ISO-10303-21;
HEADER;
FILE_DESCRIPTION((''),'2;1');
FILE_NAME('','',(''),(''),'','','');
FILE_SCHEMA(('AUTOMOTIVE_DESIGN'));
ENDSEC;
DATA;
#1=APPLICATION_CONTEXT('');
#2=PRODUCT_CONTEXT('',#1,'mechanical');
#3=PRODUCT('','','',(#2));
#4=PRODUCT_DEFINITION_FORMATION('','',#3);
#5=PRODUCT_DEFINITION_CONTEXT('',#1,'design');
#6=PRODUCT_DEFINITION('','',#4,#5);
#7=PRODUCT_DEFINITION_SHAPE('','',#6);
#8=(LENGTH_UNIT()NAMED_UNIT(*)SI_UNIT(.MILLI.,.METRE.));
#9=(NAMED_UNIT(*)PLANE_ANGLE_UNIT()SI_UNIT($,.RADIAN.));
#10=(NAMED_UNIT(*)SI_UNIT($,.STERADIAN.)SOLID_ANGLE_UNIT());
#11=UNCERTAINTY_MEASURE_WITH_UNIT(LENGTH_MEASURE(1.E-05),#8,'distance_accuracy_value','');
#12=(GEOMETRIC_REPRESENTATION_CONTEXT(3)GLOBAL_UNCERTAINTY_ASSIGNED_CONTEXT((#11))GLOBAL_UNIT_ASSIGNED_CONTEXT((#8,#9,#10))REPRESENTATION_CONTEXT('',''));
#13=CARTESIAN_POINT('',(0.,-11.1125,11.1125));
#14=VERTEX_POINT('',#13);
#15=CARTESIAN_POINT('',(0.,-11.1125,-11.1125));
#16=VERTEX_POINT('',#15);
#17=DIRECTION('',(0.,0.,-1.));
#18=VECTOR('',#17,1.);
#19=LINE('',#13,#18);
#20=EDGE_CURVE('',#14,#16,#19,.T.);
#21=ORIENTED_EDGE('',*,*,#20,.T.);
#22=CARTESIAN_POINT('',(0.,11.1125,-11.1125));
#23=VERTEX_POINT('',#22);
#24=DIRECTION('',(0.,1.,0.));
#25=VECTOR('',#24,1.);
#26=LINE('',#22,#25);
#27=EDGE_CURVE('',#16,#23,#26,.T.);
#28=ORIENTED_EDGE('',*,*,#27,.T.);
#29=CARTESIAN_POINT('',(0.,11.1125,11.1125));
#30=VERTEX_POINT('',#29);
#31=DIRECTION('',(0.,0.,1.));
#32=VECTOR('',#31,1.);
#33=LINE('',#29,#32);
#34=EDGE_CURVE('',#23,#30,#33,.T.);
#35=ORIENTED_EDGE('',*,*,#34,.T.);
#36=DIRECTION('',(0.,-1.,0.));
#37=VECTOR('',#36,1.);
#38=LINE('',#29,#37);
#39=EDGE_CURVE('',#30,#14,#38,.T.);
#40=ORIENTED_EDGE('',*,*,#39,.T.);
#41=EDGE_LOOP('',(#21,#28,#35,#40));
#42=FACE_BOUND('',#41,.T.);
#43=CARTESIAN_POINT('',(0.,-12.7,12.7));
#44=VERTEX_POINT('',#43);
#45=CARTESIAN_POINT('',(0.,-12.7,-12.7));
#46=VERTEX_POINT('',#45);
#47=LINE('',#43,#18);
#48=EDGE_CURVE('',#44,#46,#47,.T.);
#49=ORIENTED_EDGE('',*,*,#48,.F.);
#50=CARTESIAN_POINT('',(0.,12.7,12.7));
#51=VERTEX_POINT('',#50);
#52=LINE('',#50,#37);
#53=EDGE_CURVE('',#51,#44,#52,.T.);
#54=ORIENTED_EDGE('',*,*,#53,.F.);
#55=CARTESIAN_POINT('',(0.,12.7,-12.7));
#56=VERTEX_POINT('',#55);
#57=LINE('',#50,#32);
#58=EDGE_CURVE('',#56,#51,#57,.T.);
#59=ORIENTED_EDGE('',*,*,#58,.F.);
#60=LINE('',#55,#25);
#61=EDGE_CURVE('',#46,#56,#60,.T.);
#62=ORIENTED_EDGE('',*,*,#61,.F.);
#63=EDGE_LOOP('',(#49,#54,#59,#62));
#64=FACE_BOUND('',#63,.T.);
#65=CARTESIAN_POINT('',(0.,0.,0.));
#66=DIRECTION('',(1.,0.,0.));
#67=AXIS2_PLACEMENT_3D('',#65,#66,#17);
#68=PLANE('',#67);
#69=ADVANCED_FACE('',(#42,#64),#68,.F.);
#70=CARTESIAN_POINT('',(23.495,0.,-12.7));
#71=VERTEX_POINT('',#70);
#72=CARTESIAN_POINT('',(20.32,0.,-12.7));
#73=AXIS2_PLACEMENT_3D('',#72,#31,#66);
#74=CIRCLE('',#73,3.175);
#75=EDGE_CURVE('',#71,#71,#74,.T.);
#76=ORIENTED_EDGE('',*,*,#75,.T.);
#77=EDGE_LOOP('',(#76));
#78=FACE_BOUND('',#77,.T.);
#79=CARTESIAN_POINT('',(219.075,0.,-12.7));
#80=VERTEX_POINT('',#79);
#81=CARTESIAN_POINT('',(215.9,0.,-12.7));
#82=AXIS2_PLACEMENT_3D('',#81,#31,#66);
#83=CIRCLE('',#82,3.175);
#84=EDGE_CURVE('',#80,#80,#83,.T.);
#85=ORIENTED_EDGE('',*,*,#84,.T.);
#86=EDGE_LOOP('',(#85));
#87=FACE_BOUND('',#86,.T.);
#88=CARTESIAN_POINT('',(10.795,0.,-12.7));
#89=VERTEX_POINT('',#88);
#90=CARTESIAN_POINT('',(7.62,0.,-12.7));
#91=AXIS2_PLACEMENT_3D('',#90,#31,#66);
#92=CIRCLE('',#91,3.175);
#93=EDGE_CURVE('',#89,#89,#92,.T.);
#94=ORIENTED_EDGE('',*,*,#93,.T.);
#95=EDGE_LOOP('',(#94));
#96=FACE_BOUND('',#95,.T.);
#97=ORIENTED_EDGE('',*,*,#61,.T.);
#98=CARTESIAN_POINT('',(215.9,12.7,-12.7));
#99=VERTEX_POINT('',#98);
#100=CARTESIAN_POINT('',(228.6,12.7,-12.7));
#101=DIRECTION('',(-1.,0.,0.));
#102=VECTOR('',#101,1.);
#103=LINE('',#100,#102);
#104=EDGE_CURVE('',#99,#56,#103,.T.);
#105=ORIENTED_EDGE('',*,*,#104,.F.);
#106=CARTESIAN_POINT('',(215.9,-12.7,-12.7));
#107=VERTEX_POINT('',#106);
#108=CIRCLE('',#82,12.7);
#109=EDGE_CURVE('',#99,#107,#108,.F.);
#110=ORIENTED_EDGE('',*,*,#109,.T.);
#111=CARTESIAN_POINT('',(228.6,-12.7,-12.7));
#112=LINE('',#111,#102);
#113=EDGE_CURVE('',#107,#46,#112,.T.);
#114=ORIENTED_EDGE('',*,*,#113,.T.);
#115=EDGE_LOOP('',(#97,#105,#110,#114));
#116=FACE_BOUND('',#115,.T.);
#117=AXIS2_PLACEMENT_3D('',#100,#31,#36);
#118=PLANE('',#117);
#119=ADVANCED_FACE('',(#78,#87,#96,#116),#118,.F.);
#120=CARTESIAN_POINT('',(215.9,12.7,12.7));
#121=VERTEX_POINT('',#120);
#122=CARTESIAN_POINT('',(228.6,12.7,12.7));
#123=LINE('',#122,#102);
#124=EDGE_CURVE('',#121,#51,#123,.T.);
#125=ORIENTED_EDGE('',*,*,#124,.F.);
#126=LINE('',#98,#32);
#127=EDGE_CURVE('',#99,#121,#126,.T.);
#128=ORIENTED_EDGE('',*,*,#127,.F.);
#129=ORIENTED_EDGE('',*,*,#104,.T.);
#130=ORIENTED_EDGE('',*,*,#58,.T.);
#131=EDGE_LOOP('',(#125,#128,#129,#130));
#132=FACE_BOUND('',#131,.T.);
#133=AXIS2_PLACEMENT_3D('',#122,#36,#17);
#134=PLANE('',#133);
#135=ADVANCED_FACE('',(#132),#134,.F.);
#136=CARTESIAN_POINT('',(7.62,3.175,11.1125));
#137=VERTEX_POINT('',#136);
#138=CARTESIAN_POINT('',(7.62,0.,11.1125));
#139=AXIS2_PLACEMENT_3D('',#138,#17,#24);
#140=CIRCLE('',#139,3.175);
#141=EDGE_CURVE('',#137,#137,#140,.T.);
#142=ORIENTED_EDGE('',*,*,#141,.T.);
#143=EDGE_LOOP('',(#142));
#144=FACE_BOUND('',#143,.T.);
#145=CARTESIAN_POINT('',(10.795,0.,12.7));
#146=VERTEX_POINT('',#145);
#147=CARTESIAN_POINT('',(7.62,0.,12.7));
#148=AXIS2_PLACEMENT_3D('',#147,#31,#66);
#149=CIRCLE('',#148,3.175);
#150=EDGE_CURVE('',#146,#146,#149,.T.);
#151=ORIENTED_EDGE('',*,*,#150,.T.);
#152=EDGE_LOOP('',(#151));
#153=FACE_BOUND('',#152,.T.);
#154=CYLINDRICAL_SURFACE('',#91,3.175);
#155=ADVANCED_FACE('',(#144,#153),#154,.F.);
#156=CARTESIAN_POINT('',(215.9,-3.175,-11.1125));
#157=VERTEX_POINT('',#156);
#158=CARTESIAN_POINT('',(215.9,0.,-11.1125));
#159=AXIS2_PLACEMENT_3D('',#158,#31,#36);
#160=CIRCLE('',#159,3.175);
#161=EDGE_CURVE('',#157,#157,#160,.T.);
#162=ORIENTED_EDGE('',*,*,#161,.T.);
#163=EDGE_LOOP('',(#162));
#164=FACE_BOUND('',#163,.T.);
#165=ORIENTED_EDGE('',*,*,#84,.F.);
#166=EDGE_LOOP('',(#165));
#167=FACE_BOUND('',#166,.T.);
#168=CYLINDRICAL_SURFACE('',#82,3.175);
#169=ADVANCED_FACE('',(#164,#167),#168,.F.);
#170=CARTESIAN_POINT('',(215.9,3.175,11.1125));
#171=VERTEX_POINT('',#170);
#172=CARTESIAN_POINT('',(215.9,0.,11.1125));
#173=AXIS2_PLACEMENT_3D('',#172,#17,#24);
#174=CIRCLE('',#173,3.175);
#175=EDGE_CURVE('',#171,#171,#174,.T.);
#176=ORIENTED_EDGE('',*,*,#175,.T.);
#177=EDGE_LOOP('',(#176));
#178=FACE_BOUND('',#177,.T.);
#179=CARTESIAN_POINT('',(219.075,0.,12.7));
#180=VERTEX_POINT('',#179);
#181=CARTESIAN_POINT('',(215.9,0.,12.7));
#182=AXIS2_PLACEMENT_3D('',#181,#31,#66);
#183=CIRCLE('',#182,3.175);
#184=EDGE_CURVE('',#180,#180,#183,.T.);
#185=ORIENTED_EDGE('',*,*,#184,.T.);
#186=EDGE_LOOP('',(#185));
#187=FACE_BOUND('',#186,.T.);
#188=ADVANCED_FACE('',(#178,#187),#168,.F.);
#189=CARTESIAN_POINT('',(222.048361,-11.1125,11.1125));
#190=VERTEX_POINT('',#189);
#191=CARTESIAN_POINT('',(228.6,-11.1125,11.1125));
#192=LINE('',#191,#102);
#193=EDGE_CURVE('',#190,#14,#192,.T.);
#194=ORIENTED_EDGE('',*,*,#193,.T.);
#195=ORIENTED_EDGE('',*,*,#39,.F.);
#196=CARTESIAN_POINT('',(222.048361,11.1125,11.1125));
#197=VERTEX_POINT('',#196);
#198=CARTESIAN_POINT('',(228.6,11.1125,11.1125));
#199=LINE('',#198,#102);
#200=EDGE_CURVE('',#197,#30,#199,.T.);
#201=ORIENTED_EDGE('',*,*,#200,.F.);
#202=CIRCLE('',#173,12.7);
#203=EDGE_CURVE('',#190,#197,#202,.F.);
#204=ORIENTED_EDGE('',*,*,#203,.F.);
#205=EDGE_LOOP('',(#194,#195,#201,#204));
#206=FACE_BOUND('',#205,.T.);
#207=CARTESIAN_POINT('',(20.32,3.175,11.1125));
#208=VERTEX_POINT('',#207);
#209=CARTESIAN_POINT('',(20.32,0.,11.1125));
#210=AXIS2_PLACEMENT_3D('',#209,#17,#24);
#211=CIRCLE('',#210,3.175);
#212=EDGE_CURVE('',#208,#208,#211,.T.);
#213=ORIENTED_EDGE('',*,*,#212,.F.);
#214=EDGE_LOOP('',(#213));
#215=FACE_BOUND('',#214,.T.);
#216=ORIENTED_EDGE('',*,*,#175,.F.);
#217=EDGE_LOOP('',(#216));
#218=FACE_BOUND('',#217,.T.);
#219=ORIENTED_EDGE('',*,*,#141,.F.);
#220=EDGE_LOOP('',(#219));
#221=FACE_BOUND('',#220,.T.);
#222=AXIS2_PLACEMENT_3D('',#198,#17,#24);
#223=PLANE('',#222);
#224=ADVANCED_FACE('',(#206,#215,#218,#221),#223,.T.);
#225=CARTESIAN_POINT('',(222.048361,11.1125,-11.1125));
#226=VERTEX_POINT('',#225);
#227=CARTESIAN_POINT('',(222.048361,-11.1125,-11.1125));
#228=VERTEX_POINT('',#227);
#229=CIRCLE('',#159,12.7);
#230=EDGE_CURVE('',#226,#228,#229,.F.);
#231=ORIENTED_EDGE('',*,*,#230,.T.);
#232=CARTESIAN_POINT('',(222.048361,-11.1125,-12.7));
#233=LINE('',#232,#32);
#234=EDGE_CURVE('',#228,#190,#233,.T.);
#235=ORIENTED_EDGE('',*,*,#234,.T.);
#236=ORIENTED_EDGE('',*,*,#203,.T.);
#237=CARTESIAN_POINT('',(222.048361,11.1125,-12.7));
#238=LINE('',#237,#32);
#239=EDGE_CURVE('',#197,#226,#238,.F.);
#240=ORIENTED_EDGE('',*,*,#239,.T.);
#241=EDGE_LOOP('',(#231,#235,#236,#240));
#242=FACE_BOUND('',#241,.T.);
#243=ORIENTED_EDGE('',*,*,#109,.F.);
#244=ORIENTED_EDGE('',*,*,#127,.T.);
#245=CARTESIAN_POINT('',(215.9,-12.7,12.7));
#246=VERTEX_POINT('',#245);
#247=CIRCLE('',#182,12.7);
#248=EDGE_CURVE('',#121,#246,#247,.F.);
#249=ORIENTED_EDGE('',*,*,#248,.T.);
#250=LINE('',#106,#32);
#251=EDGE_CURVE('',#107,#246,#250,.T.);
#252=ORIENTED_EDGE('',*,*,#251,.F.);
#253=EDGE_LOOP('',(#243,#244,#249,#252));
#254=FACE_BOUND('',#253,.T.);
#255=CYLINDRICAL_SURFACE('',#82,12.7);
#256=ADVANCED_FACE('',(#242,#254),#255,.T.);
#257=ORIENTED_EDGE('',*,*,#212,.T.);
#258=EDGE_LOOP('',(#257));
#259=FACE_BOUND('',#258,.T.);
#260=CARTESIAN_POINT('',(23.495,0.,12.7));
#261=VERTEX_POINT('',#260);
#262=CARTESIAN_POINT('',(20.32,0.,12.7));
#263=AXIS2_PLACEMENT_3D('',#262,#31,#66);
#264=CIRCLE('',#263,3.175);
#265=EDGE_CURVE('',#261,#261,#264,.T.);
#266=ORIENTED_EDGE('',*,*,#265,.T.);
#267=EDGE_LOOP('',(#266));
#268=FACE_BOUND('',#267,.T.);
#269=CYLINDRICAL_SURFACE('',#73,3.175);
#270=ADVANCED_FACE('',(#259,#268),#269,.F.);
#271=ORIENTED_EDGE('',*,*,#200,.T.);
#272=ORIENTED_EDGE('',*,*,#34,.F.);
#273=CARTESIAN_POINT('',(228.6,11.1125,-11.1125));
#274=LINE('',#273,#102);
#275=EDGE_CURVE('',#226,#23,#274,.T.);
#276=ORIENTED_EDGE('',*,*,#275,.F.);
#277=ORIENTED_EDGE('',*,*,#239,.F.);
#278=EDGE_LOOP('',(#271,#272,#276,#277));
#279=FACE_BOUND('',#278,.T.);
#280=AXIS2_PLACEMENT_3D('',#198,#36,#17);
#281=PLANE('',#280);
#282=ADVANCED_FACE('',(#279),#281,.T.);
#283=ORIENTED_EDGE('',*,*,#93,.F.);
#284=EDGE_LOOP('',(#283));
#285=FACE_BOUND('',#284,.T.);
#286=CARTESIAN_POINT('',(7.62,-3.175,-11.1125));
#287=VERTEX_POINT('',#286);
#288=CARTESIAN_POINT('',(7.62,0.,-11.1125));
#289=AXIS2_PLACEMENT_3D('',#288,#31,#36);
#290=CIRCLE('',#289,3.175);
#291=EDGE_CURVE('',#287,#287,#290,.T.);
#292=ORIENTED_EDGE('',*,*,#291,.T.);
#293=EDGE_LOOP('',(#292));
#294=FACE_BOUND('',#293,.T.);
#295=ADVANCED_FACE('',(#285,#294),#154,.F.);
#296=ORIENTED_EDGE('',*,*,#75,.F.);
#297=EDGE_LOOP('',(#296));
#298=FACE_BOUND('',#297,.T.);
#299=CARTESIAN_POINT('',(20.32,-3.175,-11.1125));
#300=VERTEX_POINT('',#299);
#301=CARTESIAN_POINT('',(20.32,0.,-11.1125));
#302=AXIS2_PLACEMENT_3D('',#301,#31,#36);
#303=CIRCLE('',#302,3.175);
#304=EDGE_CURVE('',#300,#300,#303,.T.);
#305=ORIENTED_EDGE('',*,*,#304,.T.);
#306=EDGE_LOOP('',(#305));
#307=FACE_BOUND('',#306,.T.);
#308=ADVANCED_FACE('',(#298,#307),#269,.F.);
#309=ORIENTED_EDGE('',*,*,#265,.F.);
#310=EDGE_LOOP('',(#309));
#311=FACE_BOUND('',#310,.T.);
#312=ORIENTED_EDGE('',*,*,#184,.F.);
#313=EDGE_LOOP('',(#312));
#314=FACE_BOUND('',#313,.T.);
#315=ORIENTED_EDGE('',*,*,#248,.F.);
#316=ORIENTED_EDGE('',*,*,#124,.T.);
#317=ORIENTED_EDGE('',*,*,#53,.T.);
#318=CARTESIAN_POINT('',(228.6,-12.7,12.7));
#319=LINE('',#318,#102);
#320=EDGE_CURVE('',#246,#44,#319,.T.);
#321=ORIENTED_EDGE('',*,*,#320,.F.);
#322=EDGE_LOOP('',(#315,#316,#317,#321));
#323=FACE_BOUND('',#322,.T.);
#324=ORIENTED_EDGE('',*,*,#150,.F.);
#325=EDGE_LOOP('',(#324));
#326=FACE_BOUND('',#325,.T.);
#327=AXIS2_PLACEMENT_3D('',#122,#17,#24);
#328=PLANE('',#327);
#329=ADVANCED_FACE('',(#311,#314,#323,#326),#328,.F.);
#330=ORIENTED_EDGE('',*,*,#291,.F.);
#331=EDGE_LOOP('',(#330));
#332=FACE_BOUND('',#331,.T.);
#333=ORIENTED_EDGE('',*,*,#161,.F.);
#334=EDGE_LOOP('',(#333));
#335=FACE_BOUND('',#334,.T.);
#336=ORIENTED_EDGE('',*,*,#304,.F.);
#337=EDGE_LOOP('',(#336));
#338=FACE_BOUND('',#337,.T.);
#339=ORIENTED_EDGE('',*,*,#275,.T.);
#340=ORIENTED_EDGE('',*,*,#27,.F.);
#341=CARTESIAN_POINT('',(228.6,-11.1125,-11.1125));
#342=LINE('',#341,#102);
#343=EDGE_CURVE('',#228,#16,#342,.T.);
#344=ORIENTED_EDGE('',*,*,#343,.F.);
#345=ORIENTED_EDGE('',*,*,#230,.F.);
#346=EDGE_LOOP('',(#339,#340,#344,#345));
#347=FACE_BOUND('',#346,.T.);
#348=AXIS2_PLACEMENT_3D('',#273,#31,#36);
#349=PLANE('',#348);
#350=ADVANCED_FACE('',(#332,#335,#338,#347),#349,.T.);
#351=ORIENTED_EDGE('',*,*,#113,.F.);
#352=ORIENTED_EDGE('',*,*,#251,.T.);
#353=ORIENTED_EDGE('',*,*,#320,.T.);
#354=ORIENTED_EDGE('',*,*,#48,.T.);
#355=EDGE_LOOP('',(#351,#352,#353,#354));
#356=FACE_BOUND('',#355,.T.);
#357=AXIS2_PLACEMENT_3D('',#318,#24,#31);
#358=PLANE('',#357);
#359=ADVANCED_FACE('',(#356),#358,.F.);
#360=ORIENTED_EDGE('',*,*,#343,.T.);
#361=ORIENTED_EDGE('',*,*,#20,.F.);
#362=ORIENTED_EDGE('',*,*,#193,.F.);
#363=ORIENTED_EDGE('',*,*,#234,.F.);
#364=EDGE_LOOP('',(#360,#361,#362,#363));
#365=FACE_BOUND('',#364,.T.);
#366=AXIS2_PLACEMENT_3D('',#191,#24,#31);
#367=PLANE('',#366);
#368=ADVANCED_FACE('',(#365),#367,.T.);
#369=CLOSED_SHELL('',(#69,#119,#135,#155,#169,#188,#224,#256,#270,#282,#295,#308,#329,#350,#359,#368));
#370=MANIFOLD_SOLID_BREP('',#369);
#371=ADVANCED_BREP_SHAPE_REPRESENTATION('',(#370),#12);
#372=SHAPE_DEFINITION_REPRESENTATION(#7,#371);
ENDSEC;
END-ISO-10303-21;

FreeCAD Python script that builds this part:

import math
import FreeCAD as App
import Part
import Sketcher
from FreeCAD import Vector
Q = App.Units.Quantity

doc = App.newDocument("Part")
body = doc.addObject("PartDesign::Body", "Body")

# Sketch on YZ plane
sketch1 = body.newObject("Sketcher::SketchObject", "Sketch")
sketch1.AttachmentSupport = (doc.getObject("YZ_Plane"), [""])
sketch1.MapMode = "FlatFace"
sketch1.addGeometry(Part.LineSegment(Vector(13, 13, 0), Vector(-13, 13, 0)), False)
sketch1.addGeometry(Part.LineSegment(Vector(-13, 13, 0), Vector(-13, -13, 0)), False)
sketch1.addGeometry(Part.LineSegment(Vector(-13, -13, 0), Vector(13, -13, 0)), False)
sketch1.addGeometry(Part.LineSegment(Vector(13, -13, 0), Vector(13, 13, 0)), False)
sketch1.addGeometry(Part.LineSegment(Vector(-11, -11, 0), Vector(-11, 11, 0)), False)
sketch1.addGeometry(Part.LineSegment(Vector(-11, 11, 0), Vector(11, 11, 0)), False)
sketch1.addGeometry(Part.LineSegment(Vector(11, 11, 0), Vector(11, -11, 0)), False)
sketch1.addGeometry(Part.LineSegment(Vector(11, -11, 0), Vector(-11, -11, 0)), False)
sketch1.addConstraint(Sketcher.Constraint("Coincident", 0, 2, 1, 1))
sketch1.addConstraint(Sketcher.Constraint("Coincident", 1, 2, 2, 1))
sketch1.addConstraint(Sketcher.Constraint("Coincident", 2, 2, 3, 1))
sketch1.addConstraint(Sketcher.Constraint("Coincident", 3, 2, 0, 1))
sketch1.addConstraint(Sketcher.Constraint("Coincident", 4, 2, 5, 1))
sketch1.addConstraint(Sketcher.Constraint("Coincident", 5, 2, 6, 1))
sketch1.addConstraint(Sketcher.Constraint("Coincident", 6, 2, 7, 1))
sketch1.addConstraint(Sketcher.Constraint("Coincident", 7, 2, 4, 1))
sketch1.addConstraint(Sketcher.Constraint("Horizontal", 0))
sketch1.addConstraint(Sketcher.Constraint("Vertical", 1))
sketch1.addConstraint(Sketcher.Constraint("Horizontal", 2))
sketch1.addConstraint(Sketcher.Constraint("Vertical", 3))
sketch1.addConstraint(Sketcher.Constraint("Vertical", 4))
sketch1.addConstraint(Sketcher.Constraint("Horizontal", 5))
sketch1.addConstraint(Sketcher.Constraint("Vertical", 6))
sketch1.addConstraint(Sketcher.Constraint("Horizontal", 7))
sketch1.addConstraint(Sketcher.Constraint("Symmetric", 0, 2, 2, 2, -1, 1))
sketch1.addConstraint(Sketcher.Constraint("Symmetric", 4, 2, 6, 2, -1, 1))
sketch1.addConstraint(Sketcher.Constraint("Equal", 2, 1))
sketch1.addConstraint(Sketcher.Constraint("Equal", 7, 4))
sketch1.addConstraint(Sketcher.Constraint("DistanceX", 0, 2, 0, 1, Q("1 in")))
sketch1.addConstraint(Sketcher.Constraint("DistanceX", 5, 1, 5, 2, Q("0.875 in")))
pad1 = body.newObject("PartDesign::Pad", "Pad")
pad1.Profile = sketch1
pad1.Length = Q("9 in")

# Sketch on XY plane
sketch2 = body.newObject("Sketcher::SketchObject", "Sketch001")
sketch2.AttachmentSupport = (doc.getObject("XY_Plane"), [""])
sketch2.MapMode = "FlatFace"
sketch2.AttachmentOffset = App.Placement(Vector(0, 0, 0.5 * 25.4), App.Rotation())
sketch2.addGeometry(Part.Circle(Vector(215.9, 0, 0), Vector(0, 0, 1), 3.2), False)
sketch2.addGeometry(Part.Circle(Vector(7.6, 0, 0), Vector(0, 0, 1), 3.2), False)
sketch2.addGeometry(Part.Circle(Vector(20.3, 0, 0), Vector(0, 0, 1), 3.2), False)
sketch2.addConstraint(Sketcher.Constraint("Equal", 0, 1))
sketch2.addConstraint(Sketcher.Constraint("Equal", 1, 2))
sketch2.addConstraint(Sketcher.Constraint("PointOnObject", 0, 3, -1))
sketch2.addConstraint(Sketcher.Constraint("PointOnObject", 1, 3, -1))
sketch2.addConstraint(Sketcher.Constraint("PointOnObject", 2, 3, -1))
sketch2.addConstraint(Sketcher.Constraint("Diameter", 0, Q("0.25 in")))
sketch2.addConstraint(Sketcher.Constraint("DistanceX", -1, 1, 0, 3, Q("8.5 in")))
sketch2.addConstraint(Sketcher.Constraint("DistanceX", -1, 1, 1, 3, Q("0.3 in")))
sketch2.addConstraint(Sketcher.Constraint("DistanceX", -1, 1, 2, 3, Q("0.8 in")))
pocket1 = body.newObject("PartDesign::Pocket", "Pocket")
pocket1.Profile = sketch2
pocket1.Type = "ThroughAll"

# Sketch on XY plane
sketch3 = body.newObject("Sketcher::SketchObject", "Sketch002")
sketch3.AttachmentSupport = (doc.getObject("XY_Plane"), [""])
sketch3.MapMode = "FlatFace"
sketch3.AttachmentOffset = App.Placement(Vector(0, 0, 0.5 * 25.4), App.Rotation())
sketch3.addGeometry(Part.LineSegment(Vector(229, 13, 0), Vector(216, 13, 0)), False)
sketch3.addGeometry(Part.ArcOfCircle(Part.Circle(Vector(216, 0, 0), Vector(0, 0, 1), 13), math.radians(0), math.radians(90)), False)
sketch3.addGeometry(Part.LineSegment(Vector(229, 0, 0), Vector(229, 13, 0)), False)
sketch3.addGeometry(Part.LineSegment(Vector(229, -13, 0), Vector(229, 0, 0)), False)
sketch3.addGeometry(Part.ArcOfCircle(Part.Circle(Vector(216, 0, 0), Vector(0, 0, 1), 13), math.radians(-90), math.radians(0)), False)
sketch3.addGeometry(Part.LineSegment(Vector(216, -13, 0), Vector(229, -13, 0)), False)
sketch3.addConstraint(Sketcher.Constraint("Tangent", 0, 2, 1, 2))
sketch3.addConstraint(Sketcher.Constraint("Tangent", 1, 1, 2, 1))
sketch3.addConstraint(Sketcher.Constraint("Coincident", 2, 2, 0, 1))
sketch3.addConstraint(Sketcher.Constraint("Tangent", 3, 2, 4, 2))
sketch3.addConstraint(Sketcher.Constraint("Tangent", 4, 1, 5, 1))
sketch3.addConstraint(Sketcher.Constraint("Coincident", 5, 2, 3, 1))
sketch3.addConstraint(Sketcher.Constraint("Horizontal", 0))
sketch3.addConstraint(Sketcher.Constraint("Vertical", 2))
sketch3.addConstraint(Sketcher.Constraint("Vertical", 3))
sketch3.addConstraint(Sketcher.Constraint("Horizontal", 5))
sketch3.addConstraint(Sketcher.Constraint("Coincident", 4, 3, 1, 3))
sketch3.addConstraint(Sketcher.Constraint("Equal", 1, 4))
sketch3.addConstraint(Sketcher.Constraint("PointOnObject", 1, 3, -1))
sketch3.addConstraint(Sketcher.Constraint("Radius", 1, Q("0.5 in")))
sketch3.addConstraint(Sketcher.Constraint("DistanceX", -1, 1, 1, 1, Q("9 in")))
pocket2 = body.newObject("PartDesign::Pocket", "Pocket001")
pocket2.Profile = sketch3
pocket2.Type = "ThroughAll"

doc.recompute()
